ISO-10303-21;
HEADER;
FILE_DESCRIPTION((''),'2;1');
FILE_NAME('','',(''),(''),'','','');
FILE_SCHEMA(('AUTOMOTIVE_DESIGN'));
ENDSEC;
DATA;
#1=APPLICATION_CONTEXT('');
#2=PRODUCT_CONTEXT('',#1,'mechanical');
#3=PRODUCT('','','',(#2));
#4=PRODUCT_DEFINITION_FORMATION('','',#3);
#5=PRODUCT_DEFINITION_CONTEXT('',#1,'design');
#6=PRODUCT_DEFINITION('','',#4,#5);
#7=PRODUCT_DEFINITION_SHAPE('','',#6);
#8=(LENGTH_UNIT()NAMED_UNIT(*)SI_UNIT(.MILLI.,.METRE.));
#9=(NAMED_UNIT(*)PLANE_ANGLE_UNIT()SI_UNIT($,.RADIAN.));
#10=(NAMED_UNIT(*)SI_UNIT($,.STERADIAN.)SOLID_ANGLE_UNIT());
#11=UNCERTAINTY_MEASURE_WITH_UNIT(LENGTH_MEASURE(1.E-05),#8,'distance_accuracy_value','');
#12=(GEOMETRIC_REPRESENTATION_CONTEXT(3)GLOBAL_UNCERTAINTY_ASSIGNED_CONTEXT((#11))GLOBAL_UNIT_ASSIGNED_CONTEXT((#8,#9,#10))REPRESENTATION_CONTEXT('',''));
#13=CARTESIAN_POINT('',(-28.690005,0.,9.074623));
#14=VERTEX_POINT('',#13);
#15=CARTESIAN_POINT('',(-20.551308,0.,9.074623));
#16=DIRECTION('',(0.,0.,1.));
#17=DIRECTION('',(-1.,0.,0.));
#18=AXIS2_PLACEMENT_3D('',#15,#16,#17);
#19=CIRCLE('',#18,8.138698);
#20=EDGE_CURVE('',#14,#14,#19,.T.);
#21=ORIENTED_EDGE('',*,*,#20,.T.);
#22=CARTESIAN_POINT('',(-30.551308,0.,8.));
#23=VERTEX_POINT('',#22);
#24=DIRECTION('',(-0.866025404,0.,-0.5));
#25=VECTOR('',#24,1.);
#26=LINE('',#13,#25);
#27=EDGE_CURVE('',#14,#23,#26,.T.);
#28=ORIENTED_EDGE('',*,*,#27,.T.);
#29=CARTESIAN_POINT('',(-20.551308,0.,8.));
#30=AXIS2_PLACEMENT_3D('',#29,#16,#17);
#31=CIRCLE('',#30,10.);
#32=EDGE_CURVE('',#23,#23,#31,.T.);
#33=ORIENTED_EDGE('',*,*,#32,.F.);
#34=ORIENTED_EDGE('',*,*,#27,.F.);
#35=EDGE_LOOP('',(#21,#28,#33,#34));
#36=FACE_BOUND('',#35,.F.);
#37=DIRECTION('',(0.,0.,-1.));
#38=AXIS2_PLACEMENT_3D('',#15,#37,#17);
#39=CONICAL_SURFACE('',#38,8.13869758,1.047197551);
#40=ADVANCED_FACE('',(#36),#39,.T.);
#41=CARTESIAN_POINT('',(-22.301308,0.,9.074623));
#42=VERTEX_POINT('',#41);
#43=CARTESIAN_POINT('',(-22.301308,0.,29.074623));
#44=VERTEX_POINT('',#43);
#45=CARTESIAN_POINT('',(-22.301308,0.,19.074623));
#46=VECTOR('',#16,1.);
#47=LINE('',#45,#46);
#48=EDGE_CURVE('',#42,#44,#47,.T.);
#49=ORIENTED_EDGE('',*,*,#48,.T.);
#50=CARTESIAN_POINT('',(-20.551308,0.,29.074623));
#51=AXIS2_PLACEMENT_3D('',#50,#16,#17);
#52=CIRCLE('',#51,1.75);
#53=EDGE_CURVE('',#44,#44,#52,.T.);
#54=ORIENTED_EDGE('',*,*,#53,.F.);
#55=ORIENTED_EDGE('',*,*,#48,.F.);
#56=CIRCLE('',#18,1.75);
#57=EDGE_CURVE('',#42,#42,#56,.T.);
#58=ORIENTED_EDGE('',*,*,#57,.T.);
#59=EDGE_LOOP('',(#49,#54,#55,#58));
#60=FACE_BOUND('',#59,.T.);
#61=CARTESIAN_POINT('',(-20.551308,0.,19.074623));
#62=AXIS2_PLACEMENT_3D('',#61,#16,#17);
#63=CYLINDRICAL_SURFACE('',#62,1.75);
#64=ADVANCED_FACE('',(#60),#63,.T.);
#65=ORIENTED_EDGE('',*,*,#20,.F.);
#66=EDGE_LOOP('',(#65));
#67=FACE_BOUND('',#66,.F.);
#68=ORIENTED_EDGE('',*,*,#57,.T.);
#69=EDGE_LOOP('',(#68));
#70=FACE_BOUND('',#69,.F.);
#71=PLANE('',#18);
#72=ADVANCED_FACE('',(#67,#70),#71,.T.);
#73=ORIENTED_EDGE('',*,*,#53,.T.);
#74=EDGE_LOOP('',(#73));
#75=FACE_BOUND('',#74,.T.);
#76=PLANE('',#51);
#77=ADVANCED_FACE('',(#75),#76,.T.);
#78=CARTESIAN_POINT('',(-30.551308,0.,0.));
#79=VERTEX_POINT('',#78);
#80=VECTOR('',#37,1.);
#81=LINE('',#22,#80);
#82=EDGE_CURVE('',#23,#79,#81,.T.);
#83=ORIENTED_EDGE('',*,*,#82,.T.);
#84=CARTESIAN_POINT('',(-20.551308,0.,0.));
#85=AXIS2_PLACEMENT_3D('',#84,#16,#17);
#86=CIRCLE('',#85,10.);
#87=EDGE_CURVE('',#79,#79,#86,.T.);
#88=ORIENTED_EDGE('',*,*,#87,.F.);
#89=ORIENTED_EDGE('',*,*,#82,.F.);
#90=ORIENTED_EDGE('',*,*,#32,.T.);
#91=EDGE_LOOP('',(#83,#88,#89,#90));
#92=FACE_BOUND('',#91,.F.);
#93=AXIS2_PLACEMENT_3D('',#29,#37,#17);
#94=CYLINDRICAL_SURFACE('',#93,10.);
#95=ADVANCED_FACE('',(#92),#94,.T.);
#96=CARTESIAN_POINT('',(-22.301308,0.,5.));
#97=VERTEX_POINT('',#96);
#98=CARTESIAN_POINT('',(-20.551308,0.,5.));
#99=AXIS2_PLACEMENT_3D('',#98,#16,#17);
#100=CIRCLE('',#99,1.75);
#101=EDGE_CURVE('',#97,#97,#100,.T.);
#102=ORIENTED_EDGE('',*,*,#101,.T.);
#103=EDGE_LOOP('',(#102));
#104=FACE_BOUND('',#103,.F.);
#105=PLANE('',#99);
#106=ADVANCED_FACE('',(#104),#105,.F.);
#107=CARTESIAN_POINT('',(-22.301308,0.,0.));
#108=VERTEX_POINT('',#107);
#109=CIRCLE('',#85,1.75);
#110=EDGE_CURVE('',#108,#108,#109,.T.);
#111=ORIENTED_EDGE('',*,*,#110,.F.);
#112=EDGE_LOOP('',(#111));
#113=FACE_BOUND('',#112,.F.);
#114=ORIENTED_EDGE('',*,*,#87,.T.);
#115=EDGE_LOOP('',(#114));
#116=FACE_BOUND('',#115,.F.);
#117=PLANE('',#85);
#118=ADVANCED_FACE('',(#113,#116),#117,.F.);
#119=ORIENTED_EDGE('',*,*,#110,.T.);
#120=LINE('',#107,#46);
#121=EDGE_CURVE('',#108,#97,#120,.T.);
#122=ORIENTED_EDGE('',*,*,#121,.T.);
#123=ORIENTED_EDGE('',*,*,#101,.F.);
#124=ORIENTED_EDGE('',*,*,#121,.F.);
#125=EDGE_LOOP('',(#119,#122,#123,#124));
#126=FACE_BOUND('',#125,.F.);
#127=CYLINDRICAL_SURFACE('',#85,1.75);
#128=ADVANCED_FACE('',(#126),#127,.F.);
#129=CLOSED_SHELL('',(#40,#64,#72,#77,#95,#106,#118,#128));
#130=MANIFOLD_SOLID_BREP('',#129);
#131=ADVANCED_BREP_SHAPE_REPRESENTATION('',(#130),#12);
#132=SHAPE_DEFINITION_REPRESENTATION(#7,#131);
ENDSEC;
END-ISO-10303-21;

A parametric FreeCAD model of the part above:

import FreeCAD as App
import Part
import Sketcher

V = App.Vector
Q = App.Units.Quantity


def add_polygon(sketch, points):
    """Adds a closed chain of lines whose ends are joined by coincident constraints."""
    first, n = sketch.GeometryCount, len(points)
    for a, b in zip(points, points[1:] + points[:1]):
        sketch.addGeometry(Part.LineSegment(App.Vector(*a, 0), App.Vector(*b, 0)), False)
    for i in range(n):
        sketch.addConstraint(Sketcher.Constraint("Coincident", first + i, 2, first + (i + 1) % n, 1))

doc = App.newDocument("Part")
params = doc.addObject("Spreadsheet::Sheet", "Params")
for row, (alias, value) in enumerate([
    ("sketch1_height", "20 mm"),
    ("sketch1_height2", "8 mm"),
    ("sketch1_height3", "5 mm"),
    ("sketch1_width", "8.25 mm"),
    ("revolution_angle", "360 deg"),
], start=1):
    params.set(f"A{row}", alias)
    params.set(f"B{row}", "=" + value)
    params.setAlias(f"B{row}", alias)

body = doc.addObject("PartDesign::Body", "Body")

# Sketch on XZ plane
sketch1 = body.newObject("Sketcher::SketchObject", "Sketch")
sketch1.AttachmentSupport = (doc.getObject("XZ_Plane"), [""])
sketch1.MapMode = "FlatFace"
add_polygon(sketch1, [(-22.3, 29.1), (-22.3, 9.1), (-28.7, 9.1), (-30.6, 8), (-30.6, 0), (-22.3, 0), (-22.3, 5), (-20.6, 5), (-20.6, 29.1)])  # lines 0-8
sketch1.addGeometry(Part.LineSegment(V(-20.6, 0, 0), V(-20.6, 29.1, 0)), True)  # axis
sketch1.addConstraint(Sketcher.Constraint("Vertical", 0))
sketch1.addConstraint(Sketcher.Constraint("Horizontal", 1))
sketch1.addConstraint(Sketcher.Constraint("Vertical", 3))
sketch1.addConstraint(Sketcher.Constraint("Horizontal", 4))
sketch1.addConstraint(Sketcher.Constraint("Vertical", 5))
sketch1.addConstraint(Sketcher.Constraint("Horizontal", 6))
sketch1.addConstraint(Sketcher.Constraint("Vertical", 7))
sketch1.addConstraint(Sketcher.Constraint("Horizontal", 8))
sketch1.addConstraint(Sketcher.Constraint("Vertical", 9))
sketch1.addConstraint(Sketcher.Constraint("Coincident", 9, 2, 7, 2))
sketch1.addConstraint(Sketcher.Constraint("PointOnObject", 3, 2, -1))
sketch1.addConstraint(Sketcher.Constraint("PointOnObject", 9, 1, -1))
sketch1.addConstraint(Sketcher.Constraint("Vertical", 0, 2, 4, 2))
sketch1.addConstraint(Sketcher.Constraint("DistanceY", 0, 2, 0, 1, 20.0))
sketch1.addConstraint(Sketcher.Constraint("DistanceY", 3, 2, 3, 1, 8.0))
sketch1.addConstraint(Sketcher.Constraint("DistanceY", 5, 1, 5, 2, 5.0))
sketch1.addConstraint(Sketcher.Constraint("Angle", 2, Q("-150 deg")))
sketch1.addConstraint(Sketcher.Constraint("DistanceX", 2, 2, 6, 2, 10.0))
sketch1.addConstraint(Sketcher.Constraint("DistanceX", 4, 1, 4, 2, 8.25))
sketch1.addConstraint(Sketcher.Constraint("DistanceX", 1, 2, 1, 1, 6.388698))
sketch1.addConstraint(Sketcher.Constraint("DistanceX", 0, 2, -1, 1, 22.301308))
sketch1.setExpression("Constraints[22]", "Params.sketch1_height")
sketch1.setExpression("Constraints[23]", "Params.sketch1_height2")
sketch1.setExpression("Constraints[24]", "Params.sketch1_height3")
sketch1.setExpression("Constraints[27]", "Params.sketch1_width")
revolution = body.newObject("PartDesign::Revolution", "Revolution")
revolution.Profile = sketch1
revolution.ReferenceAxis = (sketch1, ["Axis0"])
revolution.setExpression("Angle", "Params.revolution_angle")

doc.recompute()
